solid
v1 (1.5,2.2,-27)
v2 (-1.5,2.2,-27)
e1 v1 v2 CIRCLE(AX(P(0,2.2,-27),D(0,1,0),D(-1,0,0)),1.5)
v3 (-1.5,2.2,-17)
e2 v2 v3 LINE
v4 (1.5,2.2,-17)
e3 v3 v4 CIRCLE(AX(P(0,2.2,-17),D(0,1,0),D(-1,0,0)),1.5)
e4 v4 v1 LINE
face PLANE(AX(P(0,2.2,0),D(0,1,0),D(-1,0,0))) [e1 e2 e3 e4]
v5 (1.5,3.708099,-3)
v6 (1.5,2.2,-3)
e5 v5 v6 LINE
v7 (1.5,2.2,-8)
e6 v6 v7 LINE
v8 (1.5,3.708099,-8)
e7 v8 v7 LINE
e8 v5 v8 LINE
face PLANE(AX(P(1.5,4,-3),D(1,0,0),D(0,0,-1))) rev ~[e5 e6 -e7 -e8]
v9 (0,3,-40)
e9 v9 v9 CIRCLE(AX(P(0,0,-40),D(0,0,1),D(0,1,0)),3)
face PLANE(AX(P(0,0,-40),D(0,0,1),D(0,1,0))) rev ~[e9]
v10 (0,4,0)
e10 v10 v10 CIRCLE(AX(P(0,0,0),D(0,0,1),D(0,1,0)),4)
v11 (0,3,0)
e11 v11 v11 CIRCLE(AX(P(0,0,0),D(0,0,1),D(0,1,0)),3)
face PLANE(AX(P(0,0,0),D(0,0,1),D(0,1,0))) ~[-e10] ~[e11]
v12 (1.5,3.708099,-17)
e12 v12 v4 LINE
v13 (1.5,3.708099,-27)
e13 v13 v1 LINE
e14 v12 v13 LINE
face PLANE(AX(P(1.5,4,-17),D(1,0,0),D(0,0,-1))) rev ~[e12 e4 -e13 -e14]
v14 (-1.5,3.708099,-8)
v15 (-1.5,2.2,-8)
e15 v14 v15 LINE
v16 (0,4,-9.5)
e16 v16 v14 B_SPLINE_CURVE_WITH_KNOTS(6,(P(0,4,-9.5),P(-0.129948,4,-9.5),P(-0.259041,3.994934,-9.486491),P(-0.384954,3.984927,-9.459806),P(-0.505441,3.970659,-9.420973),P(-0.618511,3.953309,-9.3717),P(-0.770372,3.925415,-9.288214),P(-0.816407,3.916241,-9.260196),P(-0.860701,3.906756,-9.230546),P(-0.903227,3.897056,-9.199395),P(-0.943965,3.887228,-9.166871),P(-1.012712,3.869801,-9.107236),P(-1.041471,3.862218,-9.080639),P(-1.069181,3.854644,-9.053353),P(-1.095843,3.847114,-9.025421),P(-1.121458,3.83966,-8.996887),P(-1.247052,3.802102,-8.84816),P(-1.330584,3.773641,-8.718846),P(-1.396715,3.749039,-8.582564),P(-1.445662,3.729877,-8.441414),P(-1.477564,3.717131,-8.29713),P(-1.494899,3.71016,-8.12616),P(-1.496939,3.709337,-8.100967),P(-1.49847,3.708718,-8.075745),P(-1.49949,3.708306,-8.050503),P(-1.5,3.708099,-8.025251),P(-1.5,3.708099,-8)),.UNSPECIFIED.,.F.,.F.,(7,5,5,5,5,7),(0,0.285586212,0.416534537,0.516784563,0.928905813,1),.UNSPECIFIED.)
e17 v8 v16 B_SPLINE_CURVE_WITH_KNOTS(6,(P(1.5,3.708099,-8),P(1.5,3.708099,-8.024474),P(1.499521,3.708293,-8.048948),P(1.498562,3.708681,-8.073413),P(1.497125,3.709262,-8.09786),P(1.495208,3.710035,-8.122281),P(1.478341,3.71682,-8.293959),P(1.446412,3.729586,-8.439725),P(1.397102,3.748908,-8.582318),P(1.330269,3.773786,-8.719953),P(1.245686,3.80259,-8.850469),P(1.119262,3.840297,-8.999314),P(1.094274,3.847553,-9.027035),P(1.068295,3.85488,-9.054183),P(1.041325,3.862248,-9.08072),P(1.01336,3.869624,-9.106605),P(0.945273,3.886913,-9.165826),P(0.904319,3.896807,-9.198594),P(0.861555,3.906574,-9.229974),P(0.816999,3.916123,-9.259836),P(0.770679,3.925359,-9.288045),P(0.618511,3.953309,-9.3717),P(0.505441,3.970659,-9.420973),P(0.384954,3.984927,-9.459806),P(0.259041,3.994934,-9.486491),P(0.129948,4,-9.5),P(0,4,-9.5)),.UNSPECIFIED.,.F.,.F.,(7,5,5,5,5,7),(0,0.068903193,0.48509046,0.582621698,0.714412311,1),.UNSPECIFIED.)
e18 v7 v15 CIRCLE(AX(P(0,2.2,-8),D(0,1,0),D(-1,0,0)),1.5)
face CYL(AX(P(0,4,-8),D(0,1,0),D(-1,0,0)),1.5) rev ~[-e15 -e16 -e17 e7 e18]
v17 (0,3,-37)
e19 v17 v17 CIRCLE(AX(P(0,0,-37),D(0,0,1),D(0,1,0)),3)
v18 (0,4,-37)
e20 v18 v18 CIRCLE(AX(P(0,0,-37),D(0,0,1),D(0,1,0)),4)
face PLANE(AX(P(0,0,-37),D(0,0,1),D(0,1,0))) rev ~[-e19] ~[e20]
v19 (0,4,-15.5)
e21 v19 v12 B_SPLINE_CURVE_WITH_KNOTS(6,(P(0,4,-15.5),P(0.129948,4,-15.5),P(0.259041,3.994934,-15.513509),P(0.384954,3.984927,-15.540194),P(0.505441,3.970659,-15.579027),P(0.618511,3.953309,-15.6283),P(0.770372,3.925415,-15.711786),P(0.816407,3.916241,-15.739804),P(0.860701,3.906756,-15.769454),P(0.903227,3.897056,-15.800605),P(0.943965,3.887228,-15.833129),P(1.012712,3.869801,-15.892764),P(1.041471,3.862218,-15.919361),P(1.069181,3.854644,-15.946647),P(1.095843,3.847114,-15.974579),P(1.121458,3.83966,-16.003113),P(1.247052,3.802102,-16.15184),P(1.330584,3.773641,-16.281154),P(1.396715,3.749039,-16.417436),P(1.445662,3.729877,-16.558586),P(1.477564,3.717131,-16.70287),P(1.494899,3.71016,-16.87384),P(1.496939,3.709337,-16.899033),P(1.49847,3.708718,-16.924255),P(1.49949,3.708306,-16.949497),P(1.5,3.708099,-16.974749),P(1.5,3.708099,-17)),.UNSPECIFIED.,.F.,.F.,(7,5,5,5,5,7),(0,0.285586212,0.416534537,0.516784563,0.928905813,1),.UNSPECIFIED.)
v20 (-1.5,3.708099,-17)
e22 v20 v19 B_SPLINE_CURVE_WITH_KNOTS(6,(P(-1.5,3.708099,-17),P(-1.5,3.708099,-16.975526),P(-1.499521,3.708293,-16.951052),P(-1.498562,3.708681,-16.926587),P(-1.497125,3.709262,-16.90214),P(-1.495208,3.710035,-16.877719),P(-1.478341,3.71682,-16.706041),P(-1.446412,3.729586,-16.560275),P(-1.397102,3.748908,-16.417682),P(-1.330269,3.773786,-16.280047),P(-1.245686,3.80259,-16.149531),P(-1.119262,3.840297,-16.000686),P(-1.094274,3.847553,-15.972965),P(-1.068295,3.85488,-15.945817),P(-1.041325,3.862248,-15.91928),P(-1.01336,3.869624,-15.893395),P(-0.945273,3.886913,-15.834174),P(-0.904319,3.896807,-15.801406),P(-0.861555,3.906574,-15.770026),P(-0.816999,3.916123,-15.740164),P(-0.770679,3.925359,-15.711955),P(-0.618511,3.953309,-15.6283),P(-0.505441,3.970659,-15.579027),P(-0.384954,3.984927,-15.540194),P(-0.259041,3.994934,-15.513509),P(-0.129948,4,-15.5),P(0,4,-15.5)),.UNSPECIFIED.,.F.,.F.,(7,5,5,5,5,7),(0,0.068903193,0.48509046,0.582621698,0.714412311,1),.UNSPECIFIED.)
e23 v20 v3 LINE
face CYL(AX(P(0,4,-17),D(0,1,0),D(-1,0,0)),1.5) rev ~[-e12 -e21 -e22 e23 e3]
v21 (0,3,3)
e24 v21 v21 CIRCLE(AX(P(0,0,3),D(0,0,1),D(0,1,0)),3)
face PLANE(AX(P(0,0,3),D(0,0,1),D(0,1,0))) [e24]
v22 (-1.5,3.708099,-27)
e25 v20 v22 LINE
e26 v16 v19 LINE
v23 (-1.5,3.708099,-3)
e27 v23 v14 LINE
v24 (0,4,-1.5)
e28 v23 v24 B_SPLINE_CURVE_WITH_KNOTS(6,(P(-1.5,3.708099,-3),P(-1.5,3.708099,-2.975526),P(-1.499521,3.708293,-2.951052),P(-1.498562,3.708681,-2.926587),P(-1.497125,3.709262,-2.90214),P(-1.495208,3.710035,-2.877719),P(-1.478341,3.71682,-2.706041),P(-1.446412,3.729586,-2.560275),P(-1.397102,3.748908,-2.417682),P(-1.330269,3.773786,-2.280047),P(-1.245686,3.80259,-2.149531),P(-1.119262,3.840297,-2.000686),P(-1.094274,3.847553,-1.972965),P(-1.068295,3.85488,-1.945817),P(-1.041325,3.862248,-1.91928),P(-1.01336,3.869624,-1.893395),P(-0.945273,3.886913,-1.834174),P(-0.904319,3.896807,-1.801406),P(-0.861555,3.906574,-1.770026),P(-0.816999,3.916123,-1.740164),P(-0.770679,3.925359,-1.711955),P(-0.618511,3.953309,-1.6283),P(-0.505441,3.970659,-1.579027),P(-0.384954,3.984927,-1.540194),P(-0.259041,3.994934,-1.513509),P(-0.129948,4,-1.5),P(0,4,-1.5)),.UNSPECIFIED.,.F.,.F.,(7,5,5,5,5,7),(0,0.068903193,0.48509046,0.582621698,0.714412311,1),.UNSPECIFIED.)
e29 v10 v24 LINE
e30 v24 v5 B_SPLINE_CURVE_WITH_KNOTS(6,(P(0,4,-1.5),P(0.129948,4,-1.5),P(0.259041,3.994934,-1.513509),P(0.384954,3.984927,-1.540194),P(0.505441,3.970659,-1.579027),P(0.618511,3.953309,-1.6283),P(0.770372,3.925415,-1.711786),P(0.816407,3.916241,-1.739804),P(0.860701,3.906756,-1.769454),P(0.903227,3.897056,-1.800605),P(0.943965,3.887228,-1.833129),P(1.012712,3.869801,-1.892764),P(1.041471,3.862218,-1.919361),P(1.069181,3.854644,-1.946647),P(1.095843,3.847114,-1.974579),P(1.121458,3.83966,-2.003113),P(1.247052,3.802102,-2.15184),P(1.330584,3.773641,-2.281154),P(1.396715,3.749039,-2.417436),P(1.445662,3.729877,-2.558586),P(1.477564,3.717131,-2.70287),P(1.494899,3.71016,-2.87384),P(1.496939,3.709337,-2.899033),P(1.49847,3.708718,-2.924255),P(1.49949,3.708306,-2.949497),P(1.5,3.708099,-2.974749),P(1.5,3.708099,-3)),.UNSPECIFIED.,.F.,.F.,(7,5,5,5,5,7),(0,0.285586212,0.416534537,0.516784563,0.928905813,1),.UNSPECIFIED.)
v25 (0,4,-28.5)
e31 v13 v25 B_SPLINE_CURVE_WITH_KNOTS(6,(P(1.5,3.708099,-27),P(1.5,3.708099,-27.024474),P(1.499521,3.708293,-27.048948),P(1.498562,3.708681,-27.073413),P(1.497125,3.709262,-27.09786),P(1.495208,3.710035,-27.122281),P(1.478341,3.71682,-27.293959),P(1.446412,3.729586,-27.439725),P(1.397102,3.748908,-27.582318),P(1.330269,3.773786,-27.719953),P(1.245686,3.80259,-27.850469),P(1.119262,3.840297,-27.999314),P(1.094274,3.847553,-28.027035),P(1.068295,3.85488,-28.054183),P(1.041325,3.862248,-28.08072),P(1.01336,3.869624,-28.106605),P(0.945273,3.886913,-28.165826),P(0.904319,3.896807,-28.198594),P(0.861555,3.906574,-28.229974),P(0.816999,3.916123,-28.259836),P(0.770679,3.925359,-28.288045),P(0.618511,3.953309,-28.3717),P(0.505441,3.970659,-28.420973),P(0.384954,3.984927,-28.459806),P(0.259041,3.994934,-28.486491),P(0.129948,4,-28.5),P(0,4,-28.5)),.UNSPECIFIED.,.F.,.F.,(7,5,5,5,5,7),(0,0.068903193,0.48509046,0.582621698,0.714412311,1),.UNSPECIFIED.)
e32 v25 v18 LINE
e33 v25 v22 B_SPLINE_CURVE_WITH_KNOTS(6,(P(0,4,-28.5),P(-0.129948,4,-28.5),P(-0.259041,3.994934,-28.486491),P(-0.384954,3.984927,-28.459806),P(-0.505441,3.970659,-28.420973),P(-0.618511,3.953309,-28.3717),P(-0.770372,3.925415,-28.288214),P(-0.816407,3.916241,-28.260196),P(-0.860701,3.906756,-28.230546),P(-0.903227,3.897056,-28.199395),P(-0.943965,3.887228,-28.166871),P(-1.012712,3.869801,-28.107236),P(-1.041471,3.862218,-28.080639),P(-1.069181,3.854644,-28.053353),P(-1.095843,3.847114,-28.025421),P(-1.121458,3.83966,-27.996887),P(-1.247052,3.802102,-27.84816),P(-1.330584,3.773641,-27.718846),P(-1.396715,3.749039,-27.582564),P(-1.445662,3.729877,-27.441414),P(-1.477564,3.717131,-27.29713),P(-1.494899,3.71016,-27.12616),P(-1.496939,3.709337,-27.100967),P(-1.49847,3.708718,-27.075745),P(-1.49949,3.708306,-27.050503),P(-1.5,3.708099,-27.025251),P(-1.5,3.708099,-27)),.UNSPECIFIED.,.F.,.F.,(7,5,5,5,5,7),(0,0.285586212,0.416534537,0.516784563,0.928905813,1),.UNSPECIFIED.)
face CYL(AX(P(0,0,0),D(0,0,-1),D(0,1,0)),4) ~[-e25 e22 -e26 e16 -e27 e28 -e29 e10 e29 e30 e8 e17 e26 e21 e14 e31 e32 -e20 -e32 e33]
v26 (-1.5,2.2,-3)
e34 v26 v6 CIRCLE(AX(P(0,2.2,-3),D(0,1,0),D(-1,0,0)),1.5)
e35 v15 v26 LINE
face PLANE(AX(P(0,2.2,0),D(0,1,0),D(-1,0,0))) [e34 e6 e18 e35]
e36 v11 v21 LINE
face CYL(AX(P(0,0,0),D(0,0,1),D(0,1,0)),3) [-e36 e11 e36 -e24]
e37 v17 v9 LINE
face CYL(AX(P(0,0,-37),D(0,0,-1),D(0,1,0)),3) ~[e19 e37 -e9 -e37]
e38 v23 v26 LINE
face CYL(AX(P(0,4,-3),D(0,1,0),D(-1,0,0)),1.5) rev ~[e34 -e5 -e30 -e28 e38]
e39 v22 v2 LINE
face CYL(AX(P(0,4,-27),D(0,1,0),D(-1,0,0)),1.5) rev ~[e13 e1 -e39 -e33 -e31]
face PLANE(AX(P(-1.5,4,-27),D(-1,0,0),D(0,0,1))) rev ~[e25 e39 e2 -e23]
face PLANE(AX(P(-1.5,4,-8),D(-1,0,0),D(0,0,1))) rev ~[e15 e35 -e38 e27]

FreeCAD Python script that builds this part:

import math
import FreeCAD as App
import Part
import Sketcher
from FreeCAD import Vector
Q = App.Units.Quantity


def add_polygon(sketch, points):
    """Adds a closed chain of lines whose ends are joined by coincident constraints."""
    first, n = sketch.GeometryCount, len(points)
    for a, b in zip(points, points[1:] + points[:1]):
        sketch.addGeometry(Part.LineSegment(App.Vector(*a, 0), App.Vector(*b, 0)), False)
    for i in range(n):
        sketch.addConstraint(Sketcher.Constraint("Coincident", first + i, 2, first + (i + 1) % n, 1))

doc = App.newDocument("Part")
body = doc.addObject("PartDesign::Body", "Body")

# Sketch on YZ plane
sketch1 = doc.addObject("Sketcher::SketchObject", "Sketch")
body.addObject(sketch1)
sketch1.AttachmentSupport = (doc.YZ_Plane, [""])
sketch1.MapMode = "FlatFace"
add_polygon(sketch1, [(0, 3), (0, -40), (3, -40), (3, -37), (4, -37), (4, 0), (3, 0), (3, 3)])  # lines 0-7
sketch1.addConstraint([
    Sketcher.Constraint("Vertical", 0),
    Sketcher.Constraint("Horizontal", 1),
    Sketcher.Constraint("Vertical", 2),
    Sketcher.Constraint("Horizontal", 3),
    Sketcher.Constraint("Vertical", 4),
    Sketcher.Constraint("Horizontal", 5),
    Sketcher.Constraint("Vertical", 6),
    Sketcher.Constraint("Horizontal", 7),
    Sketcher.Constraint("PointOnObject", 0, 2, -2),
    Sketcher.Constraint("PointOnObject", 4, 2, -1),
    Sketcher.Constraint("Vertical", 2, 2, 5, 2),
    Sketcher.Constraint("Equal", 7, 2),
    Sketcher.Constraint("Equal", 2, 6),
    Sketcher.Constraint("DistanceX", 1, 1, 1, 2, Q("3 mm")),
    Sketcher.Constraint("DistanceY", 4, 1, 4, 2, Q("37 mm")),
    Sketcher.Constraint("DistanceX", -1, 1, 3, 2, Q("4 mm")),
])
revolution = doc.addObject("PartDesign::Revolution", "Revolution")
body.addObject(revolution)
revolution.Profile = sketch1
revolution.ReferenceAxis = (sketch1, ["V_Axis"])
revolution.Angle = 360

# Sketch on XZ plane
sketch2 = doc.addObject("Sketcher::SketchObject", "Sketch001")
body.addObject(sketch2)
sketch2.AttachmentSupport = (doc.XZ_Plane, [""])
sketch2.MapMode = "FlatFace"
sketch2.AttachmentOffset = App.Placement(Vector(0, 0, -4), App.Rotation())
sketch2.addGeometry([
    Part.LineSegment(Vector(-1.5, -8, 0), Vector(-1.5, -3, 0)),  # 0
    Part.ArcOfCircle(Part.Circle(Vector(0, -3, 0), Vector(0, 0, 1), 1.5), math.radians(0), math.radians(180)),  # 1
    Part.LineSegment(Vector(1.5, -3, 0), Vector(1.5, -8, 0)),  # 2
    Part.ArcOfCircle(Part.Circle(Vector(0, -8, 0), Vector(0, 0, 1), 1.5), math.radians(180), math.radians(360)),  # 3
    Part.LineSegment(Vector(1.5, -17, 0), Vector(1.5, -27, 0)),  # 4
    Part.ArcOfCircle(Part.Circle(Vector(0, -27, 0), Vector(0, 0, 1), 1.5), math.radians(180), math.radians(360)),  # 5
    Part.LineSegment(Vector(-1.5, -27, 0), Vector(-1.5, -17, 0)),  # 6
    Part.ArcOfCircle(Part.Circle(Vector(0, -17, 0), Vector(0, 0, 1), 1.5), math.radians(0), math.radians(180)),  # 7
], False)
sketch2.addConstraint([
    Sketcher.Constraint("Tangent", 0, 2, 1, 2),
    Sketcher.Constraint("Tangent", 1, 1, 2, 1),
    Sketcher.Constraint("Tangent", 2, 2, 3, 2),
    Sketcher.Constraint("Tangent", 3, 1, 0, 1),
    Sketcher.Constraint("Tangent", 4, 2, 5, 2),
    Sketcher.Constraint("Tangent", 5, 1, 6, 1),
    Sketcher.Constraint("Tangent", 6, 2, 7, 2),
    Sketcher.Constraint("Tangent", 7, 1, 4, 1),
    Sketcher.Constraint("Vertical", 0),
    Sketcher.Constraint("Vertical", 2),
    Sketcher.Constraint("Vertical", 4),
    Sketcher.Constraint("Vertical", 6),
    Sketcher.Constraint("Equal", 3, 5),
    Sketcher.Constraint("PointOnObject", 1, 3, -2),
    Sketcher.Constraint("PointOnObject", 5, 3, -2),
    Sketcher.Constraint("Radius", 1, Q("1.5 mm")),
    Sketcher.Constraint("DistanceY", 0, 1, 0, 2, Q("5 mm")),
    Sketcher.Constraint("DistanceY", 4, 2, 4, 1, Q("10 mm")),
    Sketcher.Constraint("DistanceY", 1, 3, -1, 1, Q("3 mm")),
    Sketcher.Constraint("DistanceY", 7, 3, 3, 3, Q("9 mm")),
])
pocket1 = doc.addObject("PartDesign::Pocket", "Pocket")
body.addObject(pocket1)
pocket1.Profile = sketch2
pocket1.Length = 1.8
pocket1.Reversed = True

doc.recompute()
